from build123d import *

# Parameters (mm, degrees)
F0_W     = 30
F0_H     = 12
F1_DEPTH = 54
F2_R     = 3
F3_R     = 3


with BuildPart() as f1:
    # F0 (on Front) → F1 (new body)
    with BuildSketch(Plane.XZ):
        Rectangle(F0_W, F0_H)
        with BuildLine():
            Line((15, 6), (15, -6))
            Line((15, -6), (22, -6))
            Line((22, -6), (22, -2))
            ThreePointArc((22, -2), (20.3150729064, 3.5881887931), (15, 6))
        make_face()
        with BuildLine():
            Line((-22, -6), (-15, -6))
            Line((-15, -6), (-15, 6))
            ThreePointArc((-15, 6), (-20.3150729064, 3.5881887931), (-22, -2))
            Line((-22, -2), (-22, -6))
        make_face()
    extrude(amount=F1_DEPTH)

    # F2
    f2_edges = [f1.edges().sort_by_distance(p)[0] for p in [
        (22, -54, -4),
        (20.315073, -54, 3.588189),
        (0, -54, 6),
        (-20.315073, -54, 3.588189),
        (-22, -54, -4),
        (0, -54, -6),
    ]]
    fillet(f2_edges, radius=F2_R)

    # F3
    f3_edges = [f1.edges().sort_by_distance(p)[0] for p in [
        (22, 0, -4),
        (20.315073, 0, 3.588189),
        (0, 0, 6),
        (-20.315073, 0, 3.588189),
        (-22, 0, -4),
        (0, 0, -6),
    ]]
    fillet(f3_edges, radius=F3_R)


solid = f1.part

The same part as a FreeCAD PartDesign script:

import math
import FreeCAD as App
import Part
import Sketcher


def edges_at(feature, points):
    """Names of the edges that pass closest to the given points."""
    edges = feature.Shape.Edges
    near = lambda p: min(range(len(edges)), key=lambda i: edges[i].distToShape(Part.Vertex(*p))[0])
    return sorted({f"Edge{near(p) + 1}" for p in points})

doc = App.newDocument("Part")
body = doc.addObject("PartDesign::Body", "Body")

sketch1 = body.newObject("Sketcher::SketchObject", "Sketch")
sketch1.AttachmentSupport = (doc.getObject("XZ_Plane"), [""])
sketch1.MapMode = "FlatFace"
sketch1.addGeometry(Part.LineSegment(App.Vector(22, -6, 0), App.Vector(22, -2, 0)), False)
sketch1.addGeometry(Part.ArcOfCircle(Part.Circle(App.Vector(15, -1.1, 0), App.Vector(0, 0, 1), 7.1), math.radians(-8), math.radians(90)), False)
sketch1.addGeometry(Part.LineSegment(App.Vector(15, 6, 0), App.Vector(-15, 6, 0)), False)
sketch1.addGeometry(Part.ArcOfCircle(Part.Circle(App.Vector(-15, -1.1, 0), App.Vector(0, 0, 1), 7.1), math.radians(90), math.radians(188)), False)
sketch1.addGeometry(Part.LineSegment(App.Vector(-22, -2, 0), App.Vector(-22, -6, 0)), False)
sketch1.addGeometry(Part.LineSegment(App.Vector(-22, -6, 0), App.Vector(22, -6, 0)), False)
sketch1.addConstraint(Sketcher.Constraint("Coincident", 0, 2, 1, 1))
sketch1.addConstraint(Sketcher.Constraint("Tangent", 1, 2, 2, 1))
sketch1.addConstraint(Sketcher.Constraint("Tangent", 2, 2, 3, 1))
sketch1.addConstraint(Sketcher.Constraint("Coincident", 3, 2, 4, 1))
sketch1.addConstraint(Sketcher.Constraint("Coincident", 4, 2, 5, 1))
sketch1.addConstraint(Sketcher.Constraint("Coincident", 5, 2, 0, 1))
sketch1.addConstraint(Sketcher.Constraint("Vertical", 0))
sketch1.addConstraint(Sketcher.Constraint("Horizontal", 2))
sketch1.addConstraint(Sketcher.Constraint("Vertical", 4))
sketch1.addConstraint(Sketcher.Constraint("Horizontal", 5))
sketch1.addConstraint(Sketcher.Constraint("Equal", 1, 3))
sketch1.addConstraint(Sketcher.Constraint("Symmetric", 0, 2, 3, 2, -2))
sketch1.addConstraint(Sketcher.Constraint("DistanceX", 2, 2, 2, 1, 30.0))
sketch1.addConstraint(Sketcher.Constraint("DistanceX", 5, 1, 5, 2, 44.0))
sketch1.addConstraint(Sketcher.Constraint("DistanceY", 0, 1, 0, 2, 4.0))
sketch1.addConstraint(Sketcher.Constraint("DistanceY", 0, 2, -1, 1, 2.0))
sketch1.addConstraint(Sketcher.Constraint("DistanceY", -1, 1, 1, 2, 6.0))
pad1 = body.newObject("PartDesign::Pad", "Pad")
pad1.Profile = sketch1
pad1.Length = 54
doc.recompute()

fillet = body.newObject("PartDesign::Fillet", "Fillet")
fillet.Base = (pad1, edges_at(pad1, [
    (22, -54, -4),
    (20.315, -54, 3.588),
    (0, -54, 6),
    (-20.315, -54, 3.588),
    (-22, -54, -4),
    (0, -54, -6),
]))
fillet.Radius = 3
doc.recompute()

fillet2 = body.newObject("PartDesign::Fillet", "Fillet001")
fillet2.Base = (fillet, edges_at(fillet, [
    (22, 0, -4),
    (20.315, 0, 3.588),
    (0, 0, 6),
    (-20.315, 0, 3.588),
    (-22, 0, -4),
    (0, 0, -6),
]))
fillet2.Radius = 3

doc.recompute()
